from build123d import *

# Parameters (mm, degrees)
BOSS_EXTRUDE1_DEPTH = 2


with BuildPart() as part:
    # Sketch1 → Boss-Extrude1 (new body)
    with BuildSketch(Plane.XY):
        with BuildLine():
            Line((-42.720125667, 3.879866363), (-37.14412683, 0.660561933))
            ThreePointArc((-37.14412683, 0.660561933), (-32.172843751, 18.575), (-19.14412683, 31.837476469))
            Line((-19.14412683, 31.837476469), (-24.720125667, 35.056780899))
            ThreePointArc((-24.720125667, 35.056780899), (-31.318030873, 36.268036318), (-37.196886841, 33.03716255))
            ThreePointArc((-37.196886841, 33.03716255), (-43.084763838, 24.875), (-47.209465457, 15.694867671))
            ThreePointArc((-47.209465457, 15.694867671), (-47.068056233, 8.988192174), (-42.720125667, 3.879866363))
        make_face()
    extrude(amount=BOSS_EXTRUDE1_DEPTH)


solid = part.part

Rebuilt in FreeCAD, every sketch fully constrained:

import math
import FreeCAD as App
import Part
import Sketcher
from FreeCAD import Vector
Q = App.Units.Quantity

doc = App.newDocument("Part")
body = doc.addObject("PartDesign::Body", "Body")

sketch1 = body.newObject("Sketcher::SketchObject", "Sketch")
sketch1.AttachmentSupport = (doc.getObject("XY_Plane"), [""])
sketch1.MapMode = "FlatFace"
sketch1.addGeometry([
    Part.LineSegment(Vector(-43, 4, 0), Vector(-37, 1, 0)),
    Part.ArcOfCircle(Part.Circle(Vector(0, 0, 0), Vector(0, 0, 1), 37), math.radians(121), math.radians(179)),
    Part.LineSegment(Vector(-19, 32, 0), Vector(-25, 35, 0)),
    Part.ArcOfCircle(Part.Circle(Vector(-30, 26, 0), Vector(0, 0, 1), 10), math.radians(60), math.radians(138)),
    Part.ArcOfCircle(Part.Circle(Vector(0, 0, 0), Vector(0, 0, 1), 50), math.radians(138), math.radians(162)),
    Part.ArcOfCircle(Part.Circle(Vector(-38, 13, 0), Vector(0, 0, 1), 10), math.radians(162), math.radians(240)),
], False)
sketch1.addConstraint([
    Sketcher.Constraint("Coincident", 0, 2, 1, 2),
    Sketcher.Constraint("Coincident", 1, 1, 2, 1),
    Sketcher.Constraint("Tangent", 2, 2, 3, 1),
    Sketcher.Constraint("Tangent", 3, 2, 4, 1),
    Sketcher.Constraint("Tangent", 4, 2, 5, 1),
    Sketcher.Constraint("Tangent", 5, 2, 0, 1),
    Sketcher.Constraint("Coincident", 1, 3, -1, 1),
    Sketcher.Constraint("Coincident", 4, 3, -1, 1),
    Sketcher.Constraint("Equal", 3, 5),
    Sketcher.Constraint("Parallel", 0, 2),
    Sketcher.Constraint("Equal", 0, 2),
    Sketcher.Constraint("Radius", 3, Q("10 mm")),
    Sketcher.Constraint("Angle", 0, Q("-30 deg")),
    Sketcher.Constraint("Radius", 1, Q("37.15 mm")),
    Sketcher.Constraint("Radius", 4, Q("49.75 mm")),
    Sketcher.Constraint("DistanceX", 5, 3, 3, 3, Q("8 mm")),
])
pad1 = body.newObject("PartDesign::Pad", "Pad")
pad1.Profile = sketch1
pad1.Length = 2

doc.recompute()
